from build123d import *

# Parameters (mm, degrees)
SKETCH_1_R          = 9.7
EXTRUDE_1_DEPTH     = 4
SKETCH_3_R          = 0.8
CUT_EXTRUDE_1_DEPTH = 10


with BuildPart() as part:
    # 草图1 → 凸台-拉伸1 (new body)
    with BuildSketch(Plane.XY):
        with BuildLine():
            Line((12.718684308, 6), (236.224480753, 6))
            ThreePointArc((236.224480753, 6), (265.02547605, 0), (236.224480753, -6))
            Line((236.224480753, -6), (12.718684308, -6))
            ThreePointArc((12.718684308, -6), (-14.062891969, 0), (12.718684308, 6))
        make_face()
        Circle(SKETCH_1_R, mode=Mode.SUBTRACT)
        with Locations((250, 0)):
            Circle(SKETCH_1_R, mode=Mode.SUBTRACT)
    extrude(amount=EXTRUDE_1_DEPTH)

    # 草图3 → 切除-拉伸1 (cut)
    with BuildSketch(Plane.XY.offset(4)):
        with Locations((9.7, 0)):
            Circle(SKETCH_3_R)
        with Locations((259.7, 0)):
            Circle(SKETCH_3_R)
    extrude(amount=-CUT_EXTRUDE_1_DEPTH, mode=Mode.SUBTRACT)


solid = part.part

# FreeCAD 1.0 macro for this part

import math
import FreeCAD as App
import Part
import Sketcher

V = App.Vector
Q = App.Units.Quantity

doc = App.newDocument("Part")
body = doc.addObject("PartDesign::Body", "Body")

# Sketch on XY plane
sketch1 = body.newObject("Sketcher::SketchObject", "Sketch")
sketch1.AttachmentSupport = (doc.getObject("XY_Plane"), [""])
sketch1.MapMode = "FlatFace"
sketch1.addGeometry([
    Part.LineSegment(V(236, 6, 0), V(13, 6, 0)),  # 0
    Part.ArcOfCircle(Part.Circle(V(0, 0, 0), V(0, 0, 1), 14), math.radians(25), math.radians(335)),  # 1
    Part.LineSegment(V(13, -6, 0), V(236, -6, 0)),  # 2
    Part.ArcOfCircle(Part.Circle(V(250, 0, 0), V(0, 0, 1), 15), math.radians(-156), math.radians(156)),  # 3
    Part.Circle(V(250, 0, 0), V(0, 0, 1), 10),  # 4
    Part.Circle(V(0, 0, 0), V(0, 0, 1), 10),  # 5
], False)
sketch1.addConstraint([
    Sketcher.Constraint("Coincident", 0, 2, 1, 1),
    Sketcher.Constraint("Coincident", 1, 2, 2, 1),
    Sketcher.Constraint("Coincident", 2, 2, 3, 1),
    Sketcher.Constraint("Coincident", 3, 2, 0, 1),
    Sketcher.Constraint("Horizontal", 0),
    Sketcher.Constraint("Horizontal", 2),
    Sketcher.Constraint("Coincident", 1, 3, -1, 1),
    Sketcher.Constraint("Coincident", 5, 3, -1, 1),
    Sketcher.Constraint("Coincident", 4, 3, 3, 3),
    Sketcher.Constraint("Equal", 4, 5),
    Sketcher.Constraint("Symmetric", 2, 2, 3, 2, -1),
    Sketcher.Constraint("Diameter", 4, Q("19.4 mm")),
    Sketcher.Constraint("DistanceX", -1, 1, 3, 3, Q("250 mm")),
    Sketcher.Constraint("DistanceY", -1, 1, 0, 2, Q("6 mm")),
    Sketcher.Constraint("Radius", 1, Q("14.062892 mm")),
    Sketcher.Constraint("Radius", 3, Q("15.025476 mm")),
])
pad1 = body.newObject("PartDesign::Pad", "Pad")
pad1.Profile = sketch1
pad1.Length = 4

# Sketch on XY plane
sketch2 = body.newObject("Sketcher::SketchObject", "Sketch001")
sketch2.AttachmentSupport = (doc.getObject("XY_Plane"), [""])
sketch2.MapMode = "FlatFace"
sketch2.AttachmentOffset = App.Placement(V(0, 0, 4), App.Rotation())
sketch2.addGeometry([
    Part.Circle(V(9.7, 0, 0), V(0, 0, 1), 0.8),
    Part.Circle(V(259.7, 0, 0), V(0, 0, 1), 0.8),
], False)
sketch2.addConstraint([
    Sketcher.Constraint("Equal", 0, 1),
    Sketcher.Constraint("PointOnObject", 0, 3, -1),
    Sketcher.Constraint("PointOnObject", 1, 3, -1),
    Sketcher.Constraint("Diameter", 0, Q("1.6 mm")),
    Sketcher.Constraint("DistanceX", 0, 3, 1, 3, Q("250 mm")),
    Sketcher.Constraint("DistanceX", -1, 1, 0, 3, Q("9.7 mm")),
])
pocket1 = body.newObject("PartDesign::Pocket", "Pocket")
pocket1.Profile = sketch2
pocket1.Length = 10

doc.recompute()
